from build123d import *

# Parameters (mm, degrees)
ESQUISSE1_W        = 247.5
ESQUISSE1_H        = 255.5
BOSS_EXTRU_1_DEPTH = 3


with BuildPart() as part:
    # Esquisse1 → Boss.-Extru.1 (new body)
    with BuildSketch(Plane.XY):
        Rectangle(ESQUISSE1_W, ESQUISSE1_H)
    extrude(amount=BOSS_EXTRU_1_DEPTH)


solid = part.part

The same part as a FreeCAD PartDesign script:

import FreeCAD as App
import Part
import Sketcher

V = App.Vector
Q = App.Units.Quantity

doc = App.newDocument("Part")
params = doc.addObject("Spreadsheet::Sheet", "Params")
for row, (alias, value) in enumerate([
    ("sketch1_width", "247.5 mm"),
    ("sketch1_height", "255.5 mm"),
    ("pad1_length", "3 mm"),
], start=1):
    params.set(f"A{row}", alias)
    params.set(f"B{row}", "=" + value)
    params.setAlias(f"B{row}", alias)

body = doc.addObject("PartDesign::Body", "Body")

sketch1 = body.newObject("Sketcher::SketchObject", "Sketch")
sketch1.AttachmentSupport = (doc.getObject("XY_Plane"), [""])
sketch1.MapMode = "FlatFace"
sketch1.addGeometry([
    Part.LineSegment(V(-123.75, 127.75, 0), V(-123.75, -127.75, 0)),
    Part.LineSegment(V(-123.75, -127.75, 0), V(123.75, -127.75, 0)),
    Part.LineSegment(V(123.75, -127.75, 0), V(123.75, 127.75, 0)),
    Part.LineSegment(V(123.75, 127.75, 0), V(-123.75, 127.75, 0)),
], False)
sketch1.addConstraint([
    Sketcher.Constraint("Coincident", 0, 2, 1, 1),
    Sketcher.Constraint("Coincident", 1, 2, 2, 1),
    Sketcher.Constraint("Coincident", 2, 2, 3, 1),
    Sketcher.Constraint("Coincident", 3, 2, 0, 1),
    Sketcher.Constraint("Vertical", 0),
    Sketcher.Constraint("Horizontal", 1),
    Sketcher.Constraint("Vertical", 2),
    Sketcher.Constraint("Horizontal", 3),
    Sketcher.Constraint("Symmetric", 0, 2, 2, 2, -1, 1),
    Sketcher.Constraint("DistanceX", 1, 1, 1, 2, Q("247.5 mm")),
    Sketcher.Constraint("DistanceY", 0, 2, 0, 1, Q("255.5 mm")),
])
sketch1.setExpression("Constraints[9]", "Params.sketch1_width")
sketch1.setExpression("Constraints[10]", "Params.sketch1_height")
pad1 = body.newObject("PartDesign::Pad", "Pad")
pad1.Profile = sketch1
pad1.setExpression("Length", "Params.pad1_length")

doc.recompute()
